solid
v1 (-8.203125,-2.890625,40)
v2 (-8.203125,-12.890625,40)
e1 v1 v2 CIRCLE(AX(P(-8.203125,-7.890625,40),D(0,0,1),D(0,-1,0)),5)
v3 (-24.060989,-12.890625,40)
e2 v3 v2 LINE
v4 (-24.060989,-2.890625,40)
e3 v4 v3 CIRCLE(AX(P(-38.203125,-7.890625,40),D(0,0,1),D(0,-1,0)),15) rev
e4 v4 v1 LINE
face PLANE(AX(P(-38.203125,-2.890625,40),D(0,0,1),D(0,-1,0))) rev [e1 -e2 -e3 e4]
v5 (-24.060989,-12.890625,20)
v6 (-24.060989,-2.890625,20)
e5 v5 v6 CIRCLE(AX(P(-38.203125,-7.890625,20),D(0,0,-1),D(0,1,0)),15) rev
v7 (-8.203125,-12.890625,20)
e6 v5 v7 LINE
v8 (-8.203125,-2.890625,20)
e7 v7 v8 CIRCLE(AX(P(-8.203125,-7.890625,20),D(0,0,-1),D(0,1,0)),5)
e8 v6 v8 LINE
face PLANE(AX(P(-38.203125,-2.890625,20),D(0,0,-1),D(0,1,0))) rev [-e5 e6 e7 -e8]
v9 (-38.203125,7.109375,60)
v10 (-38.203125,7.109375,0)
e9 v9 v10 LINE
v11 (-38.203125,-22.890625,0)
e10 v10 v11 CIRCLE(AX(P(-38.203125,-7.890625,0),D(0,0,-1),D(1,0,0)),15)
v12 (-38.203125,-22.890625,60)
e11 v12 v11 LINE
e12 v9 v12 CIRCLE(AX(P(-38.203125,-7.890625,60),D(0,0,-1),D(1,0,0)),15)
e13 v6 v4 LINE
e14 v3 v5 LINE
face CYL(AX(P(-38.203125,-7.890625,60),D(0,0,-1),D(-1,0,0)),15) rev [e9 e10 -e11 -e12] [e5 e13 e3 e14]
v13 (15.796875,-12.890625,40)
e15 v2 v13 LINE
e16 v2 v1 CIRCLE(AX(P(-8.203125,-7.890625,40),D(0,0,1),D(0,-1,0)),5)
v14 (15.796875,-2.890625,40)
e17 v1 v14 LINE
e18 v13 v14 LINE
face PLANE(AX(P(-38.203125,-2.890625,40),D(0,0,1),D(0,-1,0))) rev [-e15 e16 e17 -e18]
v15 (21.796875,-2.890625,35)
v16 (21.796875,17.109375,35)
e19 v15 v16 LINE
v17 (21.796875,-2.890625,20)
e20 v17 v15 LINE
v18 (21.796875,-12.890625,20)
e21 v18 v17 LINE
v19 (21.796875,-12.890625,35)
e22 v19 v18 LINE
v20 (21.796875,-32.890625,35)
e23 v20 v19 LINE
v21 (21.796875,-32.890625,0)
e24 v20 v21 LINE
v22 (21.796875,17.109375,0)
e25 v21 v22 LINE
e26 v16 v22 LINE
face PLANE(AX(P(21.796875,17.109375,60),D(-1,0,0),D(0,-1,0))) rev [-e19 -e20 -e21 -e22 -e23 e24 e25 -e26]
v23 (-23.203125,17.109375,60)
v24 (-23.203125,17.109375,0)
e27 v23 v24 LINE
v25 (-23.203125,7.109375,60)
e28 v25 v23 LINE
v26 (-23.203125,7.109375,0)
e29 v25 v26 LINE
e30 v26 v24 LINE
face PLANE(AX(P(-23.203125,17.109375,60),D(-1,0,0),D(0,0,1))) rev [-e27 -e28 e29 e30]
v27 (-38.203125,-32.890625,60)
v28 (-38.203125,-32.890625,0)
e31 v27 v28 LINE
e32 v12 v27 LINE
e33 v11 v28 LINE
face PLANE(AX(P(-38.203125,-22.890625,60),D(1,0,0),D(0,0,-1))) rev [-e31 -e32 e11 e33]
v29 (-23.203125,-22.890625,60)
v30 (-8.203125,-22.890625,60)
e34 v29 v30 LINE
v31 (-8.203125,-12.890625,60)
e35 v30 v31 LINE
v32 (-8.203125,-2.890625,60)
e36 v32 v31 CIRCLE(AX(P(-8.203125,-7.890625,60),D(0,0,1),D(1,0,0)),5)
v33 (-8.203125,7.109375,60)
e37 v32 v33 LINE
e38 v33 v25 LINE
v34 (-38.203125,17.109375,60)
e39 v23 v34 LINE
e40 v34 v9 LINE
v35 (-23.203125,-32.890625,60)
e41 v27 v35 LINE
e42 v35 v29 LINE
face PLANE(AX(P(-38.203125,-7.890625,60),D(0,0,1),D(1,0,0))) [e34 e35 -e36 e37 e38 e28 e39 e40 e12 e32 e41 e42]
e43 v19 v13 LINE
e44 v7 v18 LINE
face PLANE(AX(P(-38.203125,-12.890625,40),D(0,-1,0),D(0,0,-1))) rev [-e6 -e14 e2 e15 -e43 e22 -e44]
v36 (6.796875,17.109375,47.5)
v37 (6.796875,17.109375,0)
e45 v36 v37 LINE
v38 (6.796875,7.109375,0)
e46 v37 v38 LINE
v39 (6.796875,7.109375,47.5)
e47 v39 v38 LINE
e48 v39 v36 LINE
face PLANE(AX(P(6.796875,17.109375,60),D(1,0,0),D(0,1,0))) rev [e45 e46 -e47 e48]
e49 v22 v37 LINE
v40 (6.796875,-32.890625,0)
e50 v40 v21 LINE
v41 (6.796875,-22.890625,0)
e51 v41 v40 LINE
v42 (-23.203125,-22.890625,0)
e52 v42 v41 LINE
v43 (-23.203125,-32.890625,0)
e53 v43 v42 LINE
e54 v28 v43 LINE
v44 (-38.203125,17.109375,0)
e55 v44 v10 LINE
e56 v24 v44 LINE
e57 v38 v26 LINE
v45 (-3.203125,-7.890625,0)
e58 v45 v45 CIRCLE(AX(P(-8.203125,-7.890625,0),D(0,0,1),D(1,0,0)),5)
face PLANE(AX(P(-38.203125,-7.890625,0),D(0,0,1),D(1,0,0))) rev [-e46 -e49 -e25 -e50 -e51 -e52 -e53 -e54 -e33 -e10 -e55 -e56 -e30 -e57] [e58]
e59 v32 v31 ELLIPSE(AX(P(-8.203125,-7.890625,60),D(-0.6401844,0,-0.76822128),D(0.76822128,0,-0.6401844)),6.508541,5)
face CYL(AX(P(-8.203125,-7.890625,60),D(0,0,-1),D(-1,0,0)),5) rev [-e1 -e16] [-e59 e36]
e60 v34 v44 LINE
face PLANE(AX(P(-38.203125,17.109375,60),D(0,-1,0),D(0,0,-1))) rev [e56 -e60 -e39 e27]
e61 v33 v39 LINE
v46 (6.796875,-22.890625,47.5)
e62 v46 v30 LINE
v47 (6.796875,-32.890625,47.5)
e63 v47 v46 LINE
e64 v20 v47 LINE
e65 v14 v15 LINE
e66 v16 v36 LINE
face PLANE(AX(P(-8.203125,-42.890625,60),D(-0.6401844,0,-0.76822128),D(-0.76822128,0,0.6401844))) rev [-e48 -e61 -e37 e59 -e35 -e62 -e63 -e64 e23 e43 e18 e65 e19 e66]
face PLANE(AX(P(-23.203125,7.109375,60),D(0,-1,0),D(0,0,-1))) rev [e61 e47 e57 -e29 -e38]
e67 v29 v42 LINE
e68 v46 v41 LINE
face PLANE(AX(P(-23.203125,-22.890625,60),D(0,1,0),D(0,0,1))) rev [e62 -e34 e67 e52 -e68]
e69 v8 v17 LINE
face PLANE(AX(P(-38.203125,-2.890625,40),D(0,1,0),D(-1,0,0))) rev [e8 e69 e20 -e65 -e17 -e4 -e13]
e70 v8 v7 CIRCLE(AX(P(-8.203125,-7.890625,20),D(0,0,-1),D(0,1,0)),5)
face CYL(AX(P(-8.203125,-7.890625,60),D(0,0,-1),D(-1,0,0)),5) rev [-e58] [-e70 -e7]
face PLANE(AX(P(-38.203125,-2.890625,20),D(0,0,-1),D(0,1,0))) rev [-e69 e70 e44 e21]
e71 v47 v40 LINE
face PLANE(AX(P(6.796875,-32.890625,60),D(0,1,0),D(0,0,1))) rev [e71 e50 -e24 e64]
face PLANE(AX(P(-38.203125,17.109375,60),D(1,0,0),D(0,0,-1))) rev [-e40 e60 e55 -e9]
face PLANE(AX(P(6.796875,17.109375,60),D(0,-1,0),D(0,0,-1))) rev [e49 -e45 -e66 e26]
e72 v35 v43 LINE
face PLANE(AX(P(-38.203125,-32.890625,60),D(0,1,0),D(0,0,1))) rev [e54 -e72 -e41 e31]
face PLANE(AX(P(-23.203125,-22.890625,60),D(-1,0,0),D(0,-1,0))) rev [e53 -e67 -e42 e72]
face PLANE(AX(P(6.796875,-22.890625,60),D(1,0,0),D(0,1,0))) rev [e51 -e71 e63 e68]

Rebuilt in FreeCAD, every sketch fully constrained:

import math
import FreeCAD as App
import Part
import Sketcher
Q = App.Units.Quantity


def add_polygon(sketch, points):
    """Adds a closed chain of lines whose ends are joined by coincident constraints."""
    first, n = sketch.GeometryCount, len(points)
    for a, b in zip(points, points[1:] + points[:1]):
        sketch.addGeometry(Part.LineSegment(App.Vector(*a, 0), App.Vector(*b, 0)), False)
    for i in range(n):
        sketch.addConstraint(Sketcher.Constraint("Coincident", first + i, 2, first + (i + 1) % n, 1))

doc = App.newDocument("Part")
body = doc.addObject("PartDesign::Body", "Body")

sketch1 = doc.addObject("Sketcher::SketchObject", "Sketch")
body.addObject(sketch1)
sketch1.AttachmentSupport = (doc.XY_Plane, [""])
sketch1.MapMode = "FlatFace"
sketch1.addGeometry([
    Part.LineSegment(App.Vector(-23, -33, 0), App.Vector(-23, -23, 0)),
    Part.LineSegment(App.Vector(-23, -23, 0), App.Vector(7, -23, 0)),
    Part.LineSegment(App.Vector(7, -23, 0), App.Vector(7, -33, 0)),
    Part.LineSegment(App.Vector(7, -33, 0), App.Vector(22, -33, 0)),
    Part.LineSegment(App.Vector(22, -33, 0), App.Vector(22, 17, 0)),
    Part.LineSegment(App.Vector(22, 17, 0), App.Vector(7, 17, 0)),
    Part.LineSegment(App.Vector(7, 17, 0), App.Vector(7, 7, 0)),
    Part.LineSegment(App.Vector(7, 7, 0), App.Vector(-23, 7, 0)),
    Part.LineSegment(App.Vector(-23, 7, 0), App.Vector(-23, 17, 0)),
    Part.LineSegment(App.Vector(-23, 17, 0), App.Vector(-38, 17, 0)),
    Part.LineSegment(App.Vector(-38, 17, 0), App.Vector(-38, 7, 0)),
    Part.ArcOfCircle(Part.Circle(App.Vector(-38, -8, 0), App.Vector(0, 0, 1), 15), math.radians(-90), math.radians(90)),
    Part.LineSegment(App.Vector(-38, -23, 0), App.Vector(-38, -33, 0)),
    Part.LineSegment(App.Vector(-38, -33, 0), App.Vector(-23, -33, 0)),
    Part.Circle(App.Vector(-8, -8, 0), App.Vector(0, 0, 1), 5),
], False)
sketch1.addConstraint([
    Sketcher.Constraint("Coincident", 0, 2, 1, 1),
    Sketcher.Constraint("Coincident", 1, 2, 2, 1),
    Sketcher.Constraint("Coincident", 2, 2, 3, 1),
    Sketcher.Constraint("Coincident", 3, 2, 4, 1),
    Sketcher.Constraint("Coincident", 4, 2, 5, 1),
    Sketcher.Constraint("Coincident", 5, 2, 6, 1),
    Sketcher.Constraint("Coincident", 6, 2, 7, 1),
    Sketcher.Constraint("Coincident", 7, 2, 8, 1),
    Sketcher.Constraint("Coincident", 8, 2, 9, 1),
    Sketcher.Constraint("Coincident", 9, 2, 10, 1),
    Sketcher.Constraint("Coincident", 10, 2, 11, 2),
    Sketcher.Constraint("Coincident", 11, 1, 12, 1),
    Sketcher.Constraint("Coincident", 12, 2, 13, 1),
    Sketcher.Constraint("Coincident", 13, 2, 0, 1),
    Sketcher.Constraint("Vertical", 0),
    Sketcher.Constraint("Horizontal", 1),
    Sketcher.Constraint("Vertical", 2),
    Sketcher.Constraint("Horizontal", 3),
    Sketcher.Constraint("Vertical", 4),
    Sketcher.Constraint("Horizontal", 5),
    Sketcher.Constraint("Vertical", 6),
    Sketcher.Constraint("Horizontal", 7),
    Sketcher.Constraint("Vertical", 8),
    Sketcher.Constraint("Horizontal", 9),
    Sketcher.Constraint("Vertical", 10),
    Sketcher.Constraint("Vertical", 12),
    Sketcher.Constraint("Horizontal", 13),
    Sketcher.Constraint("Horizontal", 11, 3, 14, 3),
    Sketcher.Constraint("Horizontal", 5, 2, 8, 2),
    Sketcher.Constraint("Horizontal", 7, 2, 10, 2),
    Sketcher.Constraint("Horizontal", 1, 2, 11, 1),
    Sketcher.Constraint("Horizontal", 3, 2, 12, 2),
    Sketcher.Constraint("Vertical", 2, 2, 5, 2),
    Sketcher.Constraint("Vertical", 0, 2, 7, 2),
    Sketcher.Constraint("Vertical", 11, 3, 9, 2),
    Sketcher.Constraint("Vertical", 10, 2, 11, 1),
    Sketcher.Constraint("Equal", 5, 9),
    Sketcher.Constraint("Equal", 2, 6),
    Sketcher.Constraint("Diameter", 14, Q("10 mm")),
    Sketcher.Constraint("Radius", 11, Q("15 mm")),
    Sketcher.Constraint("DistanceX", 1, 1, 1, 2, Q("30 mm")),
    Sketcher.Constraint("DistanceX", 3, 1, 3, 2, Q("15 mm")),
    Sketcher.Constraint("DistanceY", 0, 1, 0, 2, Q("10 mm")),
    Sketcher.Constraint("DistanceX", 11, 3, 14, 3, Q("30 mm")),
    Sketcher.Constraint("DistanceX", 11, 3, -1, 1, Q("38.203125 mm")),
    Sketcher.Constraint("DistanceY", 11, 3, -1, 1, Q("7.890625 mm")),
])
pad1 = doc.addObject("PartDesign::Pad", "Pad")
body.addObject(pad1)
pad1.Profile = sketch1
pad1.Length = 60

sketch2 = doc.addObject("Sketcher::SketchObject", "Sketch001")
body.addObject(sketch2)
sketch2.AttachmentSupport = (doc.XZ_Plane, [""])
sketch2.MapMode = "FlatFace"
sketch2.AttachmentOffset = App.Placement(App.Vector(0, 0, -17.109375), App.Rotation())
add_polygon(sketch2, [(22, 35), (-8, 60), (22, 60)])
sketch2.addConstraint([
    Sketcher.Constraint("Horizontal", 1),
    Sketcher.Constraint("Vertical", 2),
    Sketcher.Constraint("DistanceX", 1, 1, 1, 2, Q("30 mm")),
    Sketcher.Constraint("DistanceY", 2, 2, 2, 1, Q("25 mm")),
    Sketcher.Constraint("DistanceY", -1, 1, 0, 2, Q("60 mm")),
    Sketcher.Constraint("DistanceX", 0, 2, -1, 1, Q("8.203125 mm")),
])
pocket1 = doc.addObject("PartDesign::Pocket", "Pocket")
body.addObject(pocket1)
pocket1.Profile = sketch2
pocket1.Length = 60
pocket1.Reversed = True

sketch3 = doc.addObject("Sketcher::SketchObject", "Sketch002")
body.addObject(sketch3)
sketch3.AttachmentSupport = (doc.YZ_Plane, [""])
sketch3.MapMode = "FlatFace"
sketch3.AttachmentOffset = App.Placement(App.Vector(0, 0, 21.796875), App.Rotation())
add_polygon(sketch3, [(-3, 40), (-13, 40), (-13, 20), (-3, 20)])
sketch3.addConstraint([
    Sketcher.Constraint("Horizontal", 0),
    Sketcher.Constraint("Vertical", 1),
    Sketcher.Constraint("Horizontal", 2),
    Sketcher.Constraint("Vertical", 3),
    Sketcher.Constraint("DistanceX", 0, 2, 0, 1, Q("10 mm")),
    Sketcher.Constraint("DistanceY", 1, 2, 1, 1, Q("20 mm")),
    Sketcher.Constraint("DistanceY", -1, 1, 0, 2, Q("40 mm")),
    Sketcher.Constraint("DistanceX", 0, 2, -1, 1, Q("12.890625 mm")),
])
pocket2 = doc.addObject("PartDesign::Pocket", "Pocket001")
body.addObject(pocket2)
pocket2.Profile = sketch3
pocket2.Length = 60

doc.recompute()
